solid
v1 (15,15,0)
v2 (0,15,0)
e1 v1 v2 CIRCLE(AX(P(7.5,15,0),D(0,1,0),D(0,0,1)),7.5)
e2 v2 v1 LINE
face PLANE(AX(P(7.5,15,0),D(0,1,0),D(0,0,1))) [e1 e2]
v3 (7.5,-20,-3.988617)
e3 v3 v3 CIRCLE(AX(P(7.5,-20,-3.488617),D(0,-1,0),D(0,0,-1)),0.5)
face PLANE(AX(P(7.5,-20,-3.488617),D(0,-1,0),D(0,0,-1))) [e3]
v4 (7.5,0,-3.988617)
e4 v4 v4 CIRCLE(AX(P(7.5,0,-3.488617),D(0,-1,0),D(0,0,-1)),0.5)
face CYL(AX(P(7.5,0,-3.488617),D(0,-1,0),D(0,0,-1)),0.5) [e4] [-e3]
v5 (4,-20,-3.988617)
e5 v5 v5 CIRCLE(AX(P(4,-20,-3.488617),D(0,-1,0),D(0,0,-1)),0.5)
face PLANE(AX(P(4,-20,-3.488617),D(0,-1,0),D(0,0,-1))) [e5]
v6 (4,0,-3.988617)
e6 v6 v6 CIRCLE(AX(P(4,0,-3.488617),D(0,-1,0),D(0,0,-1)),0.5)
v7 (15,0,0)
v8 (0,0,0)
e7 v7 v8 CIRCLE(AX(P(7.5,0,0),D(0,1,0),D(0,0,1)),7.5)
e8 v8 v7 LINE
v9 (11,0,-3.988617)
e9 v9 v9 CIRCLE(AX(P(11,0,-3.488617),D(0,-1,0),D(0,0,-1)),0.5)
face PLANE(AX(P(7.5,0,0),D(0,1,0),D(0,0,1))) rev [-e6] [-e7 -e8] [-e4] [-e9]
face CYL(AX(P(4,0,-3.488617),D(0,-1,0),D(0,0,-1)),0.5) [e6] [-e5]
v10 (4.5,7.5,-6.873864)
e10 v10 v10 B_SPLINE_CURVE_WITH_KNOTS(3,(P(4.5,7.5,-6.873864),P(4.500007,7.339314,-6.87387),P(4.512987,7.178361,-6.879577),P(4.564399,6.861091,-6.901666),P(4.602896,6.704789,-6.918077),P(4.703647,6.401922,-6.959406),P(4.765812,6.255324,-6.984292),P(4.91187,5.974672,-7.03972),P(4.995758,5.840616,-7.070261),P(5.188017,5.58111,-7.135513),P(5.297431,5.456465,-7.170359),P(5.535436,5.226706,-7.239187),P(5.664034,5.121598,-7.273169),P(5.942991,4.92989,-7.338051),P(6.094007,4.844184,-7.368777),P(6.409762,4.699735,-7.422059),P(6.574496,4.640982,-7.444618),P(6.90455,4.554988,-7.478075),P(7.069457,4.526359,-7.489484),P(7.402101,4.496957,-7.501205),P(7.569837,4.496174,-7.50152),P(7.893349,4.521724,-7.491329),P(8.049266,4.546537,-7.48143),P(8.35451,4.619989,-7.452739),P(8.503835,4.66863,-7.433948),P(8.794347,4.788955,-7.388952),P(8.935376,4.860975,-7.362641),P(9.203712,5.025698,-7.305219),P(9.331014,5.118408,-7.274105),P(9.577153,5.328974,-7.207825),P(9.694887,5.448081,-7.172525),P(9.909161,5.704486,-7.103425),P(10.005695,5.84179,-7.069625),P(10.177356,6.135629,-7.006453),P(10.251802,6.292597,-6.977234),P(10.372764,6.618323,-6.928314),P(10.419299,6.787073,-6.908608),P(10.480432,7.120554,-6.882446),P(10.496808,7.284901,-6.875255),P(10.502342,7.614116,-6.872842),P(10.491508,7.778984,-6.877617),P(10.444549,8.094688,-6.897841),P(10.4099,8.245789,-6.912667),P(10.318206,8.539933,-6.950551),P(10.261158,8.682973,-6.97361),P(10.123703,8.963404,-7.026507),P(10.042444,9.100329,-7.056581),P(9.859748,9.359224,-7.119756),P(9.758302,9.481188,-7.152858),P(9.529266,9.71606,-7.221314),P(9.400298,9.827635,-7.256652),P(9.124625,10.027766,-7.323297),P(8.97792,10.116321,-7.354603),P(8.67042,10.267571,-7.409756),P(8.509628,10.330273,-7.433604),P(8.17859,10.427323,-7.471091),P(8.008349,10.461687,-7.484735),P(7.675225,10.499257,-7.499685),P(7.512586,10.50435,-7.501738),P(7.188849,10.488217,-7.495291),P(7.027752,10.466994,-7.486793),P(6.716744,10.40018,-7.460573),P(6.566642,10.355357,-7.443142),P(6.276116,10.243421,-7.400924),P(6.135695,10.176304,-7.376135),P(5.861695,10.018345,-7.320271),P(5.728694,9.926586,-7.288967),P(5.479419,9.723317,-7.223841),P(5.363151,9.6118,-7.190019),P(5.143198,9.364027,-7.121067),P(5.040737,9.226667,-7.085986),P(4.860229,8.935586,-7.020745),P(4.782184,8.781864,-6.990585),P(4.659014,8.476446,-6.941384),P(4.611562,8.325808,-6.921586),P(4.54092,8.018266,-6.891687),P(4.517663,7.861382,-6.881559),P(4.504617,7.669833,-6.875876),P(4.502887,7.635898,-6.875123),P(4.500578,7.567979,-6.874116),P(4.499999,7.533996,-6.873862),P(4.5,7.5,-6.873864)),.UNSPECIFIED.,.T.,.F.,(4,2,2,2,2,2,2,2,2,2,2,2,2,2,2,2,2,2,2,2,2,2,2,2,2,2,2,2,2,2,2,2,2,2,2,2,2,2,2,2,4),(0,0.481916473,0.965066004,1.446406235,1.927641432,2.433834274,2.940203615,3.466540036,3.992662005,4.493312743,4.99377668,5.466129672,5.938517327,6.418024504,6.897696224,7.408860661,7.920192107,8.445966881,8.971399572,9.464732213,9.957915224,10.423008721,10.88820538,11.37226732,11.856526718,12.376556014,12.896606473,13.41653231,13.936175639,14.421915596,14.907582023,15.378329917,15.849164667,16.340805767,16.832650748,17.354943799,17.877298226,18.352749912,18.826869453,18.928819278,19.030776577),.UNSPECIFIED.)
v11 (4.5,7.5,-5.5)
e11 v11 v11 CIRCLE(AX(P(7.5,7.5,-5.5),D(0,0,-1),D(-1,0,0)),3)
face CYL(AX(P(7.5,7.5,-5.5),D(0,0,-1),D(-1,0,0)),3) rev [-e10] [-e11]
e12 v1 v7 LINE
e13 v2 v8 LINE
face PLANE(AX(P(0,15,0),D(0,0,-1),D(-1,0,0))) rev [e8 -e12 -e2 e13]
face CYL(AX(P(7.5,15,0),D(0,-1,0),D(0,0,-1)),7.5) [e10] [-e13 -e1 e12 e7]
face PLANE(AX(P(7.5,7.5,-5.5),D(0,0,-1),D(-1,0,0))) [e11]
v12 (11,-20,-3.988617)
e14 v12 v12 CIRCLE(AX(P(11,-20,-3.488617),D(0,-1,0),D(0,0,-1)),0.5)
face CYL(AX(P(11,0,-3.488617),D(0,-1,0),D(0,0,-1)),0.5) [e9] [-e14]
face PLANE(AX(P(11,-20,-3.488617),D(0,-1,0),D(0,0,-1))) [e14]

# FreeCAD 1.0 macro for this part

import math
import FreeCAD as App
import Part
import Sketcher

V = App.Vector

doc = App.newDocument("Part")
params = doc.addObject("Spreadsheet::Sheet", "Params")
for row, (alias, value) in enumerate([
    ("sketch1_radius", "7.5 mm"),
    ("pad1_length", "15 mm"),
    ("sketch2_diameter", "6 mm"),
    ("pocket1_length", "2 mm"),
    ("sketch3_diameter", "1 mm"),
    ("sketch4_height", "20 mm"),
    ("sketch5_diameter", "1 mm"),
    ("sketch6_height", "20 mm"),
    ("sketch7_diameter", "1 mm"),
    ("sketch8_height", "20 mm"),
], start=1):
    params.set(f"A{row}", alias)
    params.set(f"B{row}", "=" + value)
    params.setAlias(f"B{row}", alias)

body = doc.addObject("PartDesign::Body", "Body")

sketch1 = body.newObject("Sketcher::SketchObject", "Sketch")
sketch1.AttachmentSupport = (doc.getObject("XZ_Plane"), [""])
sketch1.MapMode = "FlatFace"
sketch1.addGeometry(Part.LineSegment(V(0, 0, 0), V(15, 0, 0)), False)
sketch1.addGeometry(Part.ArcOfCircle(Part.Circle(V(8, 0, 0), V(0, 0, 1), 8), math.radians(180), math.radians(360)), False)
sketch1.addConstraint(Sketcher.Constraint("Coincident", 0, 1, 1, 1))
sketch1.addConstraint(Sketcher.Constraint("Coincident", 1, 2, 0, 2))
sketch1.addConstraint(Sketcher.Constraint("Horizontal", 0))
sketch1.addConstraint(Sketcher.Constraint("Coincident", 0, 1, -1, 1))
sketch1.addConstraint(Sketcher.Constraint("PointOnObject", 1, 3, -1))
sketch1.addConstraint(Sketcher.Constraint("Radius", 1, 7.5))
sketch1.setExpression("Constraints[5]", "Params.sketch1_radius")
pad1 = body.newObject("PartDesign::Pad", "Pad")
pad1.Profile = sketch1
pad1.setExpression("Length", "Params.pad1_length")
pad1.Reversed = True

sketch2 = body.newObject("Sketcher::SketchObject", "Sketch001")
sketch2.AttachmentSupport = (doc.getObject("XY_Plane"), [""])
sketch2.MapMode = "FlatFace"
sketch2.AttachmentOffset = App.Placement(V(0, 0, -7.5), App.Rotation())
sketch2.addGeometry(Part.Circle(V(7.5, 7.5, 0), V(0, 0, 1), 3), False)
sketch2.addConstraint(Sketcher.Constraint("Diameter", 0, 6.0))
sketch2.addConstraint(Sketcher.Constraint("DistanceX", -1, 1, 0, 3, 7.5))
sketch2.addConstraint(Sketcher.Constraint("DistanceY", -1, 1, 0, 3, 7.5))
sketch2.setExpression("Constraints[0]", "Params.sketch2_diameter")
pocket1 = body.newObject("PartDesign::Pocket", "Pocket")
pocket1.Profile = sketch2
pocket1.setExpression("Length", "Params.pocket1_length")
pocket1.Reversed = True

sketch3 = body.newObject("Sketcher::SketchObject", "Sketch002")
sketch3.AttachmentSupport = (doc.getObject("XZ_Plane"), [""])
sketch3.MapMode = "FlatFace"
sketch3.AttachmentOffset = App.Placement(V(0, 0, 20), App.Rotation())
sketch3.addGeometry(Part.Circle(V(11, -3.5, 0), V(0, 0, 1), 0.5), False)
sketch3.addConstraint(Sketcher.Constraint("Diameter", 0, 1.0))
sketch3.addConstraint(Sketcher.Constraint("DistanceX", -1, 1, 0, 3, 11.0))
sketch3.addConstraint(Sketcher.Constraint("DistanceY", 0, 3, -1, 1, 3.488617))
sketch3.setExpression("Constraints[0]", "Params.sketch3_diameter")

sketch4 = body.newObject("Sketcher::SketchObject", "Sketch003")
sketch4.AttachmentSupport = (doc.getObject("XY_Plane"), [""])
sketch4.MapMode = "FlatFace"
sketch4.AttachmentOffset = App.Placement(V(0, 0, -3.488617), App.Rotation())
sketch4.addGeometry(Part.LineSegment(V(11, 0, 0), V(11, -20, 0)), False)
sketch4.addConstraint(Sketcher.Constraint("Vertical", 0))
sketch4.addConstraint(Sketcher.Constraint("PointOnObject", 0, 1, -1))
sketch4.addConstraint(Sketcher.Constraint("DistanceY", 0, 2, 0, 1, 20.0))
sketch4.addConstraint(Sketcher.Constraint("DistanceX", -1, 1, 0, 1, 11.0))
sketch4.setExpression("Constraints[2]", "Params.sketch4_height")
doc.recompute()

additivepipe = body.newObject("PartDesign::AdditivePipe", "AdditivePipe")
additivepipe.Profile = sketch3
additivepipe.Spine = (sketch4, ["Edge1"])

sketch5 = body.newObject("Sketcher::SketchObject", "Sketch004")
sketch5.AttachmentSupport = (doc.getObject("XZ_Plane"), [""])
sketch5.MapMode = "FlatFace"
sketch5.AttachmentOffset = App.Placement(V(0, 0, 20), App.Rotation())
sketch5.addGeometry(Part.Circle(V(7.5, -3.5, 0), V(0, 0, 1), 0.5), False)
sketch5.addConstraint(Sketcher.Constraint("Diameter", 0, 1.0))
sketch5.addConstraint(Sketcher.Constraint("DistanceX", -1, 1, 0, 3, 7.5))
sketch5.addConstraint(Sketcher.Constraint("DistanceY", 0, 3, -1, 1, 3.488617))
sketch5.setExpression("Constraints[0]", "Params.sketch5_diameter")

sketch6 = body.newObject("Sketcher::SketchObject", "Sketch005")
sketch6.AttachmentSupport = (doc.getObject("XY_Plane"), [""])
sketch6.MapMode = "FlatFace"
sketch6.AttachmentOffset = App.Placement(V(0, 0, -3.488617), App.Rotation())
sketch6.addGeometry(Part.LineSegment(V(8, 0, 0), V(8, -20, 0)), False)
sketch6.addConstraint(Sketcher.Constraint("Vertical", 0))
sketch6.addConstraint(Sketcher.Constraint("PointOnObject", 0, 1, -1))
sketch6.addConstraint(Sketcher.Constraint("DistanceY", 0, 2, 0, 1, 20.0))
sketch6.addConstraint(Sketcher.Constraint("DistanceX", -1, 1, 0, 1, 7.5))
sketch6.setExpression("Constraints[2]", "Params.sketch6_height")
doc.recompute()

additivepipe2 = body.newObject("PartDesign::AdditivePipe", "AdditivePipe001")
additivepipe2.Profile = sketch5
additivepipe2.Spine = (sketch6, ["Edge1"])

sketch7 = body.newObject("Sketcher::SketchObject", "Sketch006")
sketch7.AttachmentSupport = (doc.getObject("XZ_Plane"), [""])
sketch7.MapMode = "FlatFace"
sketch7.AttachmentOffset = App.Placement(V(0, 0, 20), App.Rotation())
sketch7.addGeometry(Part.Circle(V(4, -3.5, 0), V(0, 0, 1), 0.5), False)
sketch7.addConstraint(Sketcher.Constraint("Diameter", 0, 1.0))
sketch7.addConstraint(Sketcher.Constraint("DistanceX", -1, 1, 0, 3, 4.0))
sketch7.addConstraint(Sketcher.Constraint("DistanceY", 0, 3, -1, 1, 3.488617))
sketch7.setExpression("Constraints[0]", "Params.sketch7_diameter")

sketch8 = body.newObject("Sketcher::SketchObject", "Sketch007")
sketch8.AttachmentSupport = (doc.getObject("XY_Plane"), [""])
sketch8.MapMode = "FlatFace"
sketch8.AttachmentOffset = App.Placement(V(0, 0, -3.488617), App.Rotation())
sketch8.addGeometry(Part.LineSegment(V(4, 0, 0), V(4, -20, 0)), False)
sketch8.addConstraint(Sketcher.Constraint("Vertical", 0))
sketch8.addConstraint(Sketcher.Constraint("PointOnObject", 0, 1, -1))
sketch8.addConstraint(Sketcher.Constraint("DistanceY", 0, 2, 0, 1, 20.0))
sketch8.addConstraint(Sketcher.Constraint("DistanceX", -1, 1, 0, 1, 4.0))
sketch8.setExpression("Constraints[2]", "Params.sketch8_height")
doc.recompute()

additivepipe3 = body.newObject("PartDesign::AdditivePipe", "AdditivePipe002")
additivepipe3.Profile = sketch7
additivepipe3.Spine = (sketch8, ["Edge1"])

doc.recompute()
